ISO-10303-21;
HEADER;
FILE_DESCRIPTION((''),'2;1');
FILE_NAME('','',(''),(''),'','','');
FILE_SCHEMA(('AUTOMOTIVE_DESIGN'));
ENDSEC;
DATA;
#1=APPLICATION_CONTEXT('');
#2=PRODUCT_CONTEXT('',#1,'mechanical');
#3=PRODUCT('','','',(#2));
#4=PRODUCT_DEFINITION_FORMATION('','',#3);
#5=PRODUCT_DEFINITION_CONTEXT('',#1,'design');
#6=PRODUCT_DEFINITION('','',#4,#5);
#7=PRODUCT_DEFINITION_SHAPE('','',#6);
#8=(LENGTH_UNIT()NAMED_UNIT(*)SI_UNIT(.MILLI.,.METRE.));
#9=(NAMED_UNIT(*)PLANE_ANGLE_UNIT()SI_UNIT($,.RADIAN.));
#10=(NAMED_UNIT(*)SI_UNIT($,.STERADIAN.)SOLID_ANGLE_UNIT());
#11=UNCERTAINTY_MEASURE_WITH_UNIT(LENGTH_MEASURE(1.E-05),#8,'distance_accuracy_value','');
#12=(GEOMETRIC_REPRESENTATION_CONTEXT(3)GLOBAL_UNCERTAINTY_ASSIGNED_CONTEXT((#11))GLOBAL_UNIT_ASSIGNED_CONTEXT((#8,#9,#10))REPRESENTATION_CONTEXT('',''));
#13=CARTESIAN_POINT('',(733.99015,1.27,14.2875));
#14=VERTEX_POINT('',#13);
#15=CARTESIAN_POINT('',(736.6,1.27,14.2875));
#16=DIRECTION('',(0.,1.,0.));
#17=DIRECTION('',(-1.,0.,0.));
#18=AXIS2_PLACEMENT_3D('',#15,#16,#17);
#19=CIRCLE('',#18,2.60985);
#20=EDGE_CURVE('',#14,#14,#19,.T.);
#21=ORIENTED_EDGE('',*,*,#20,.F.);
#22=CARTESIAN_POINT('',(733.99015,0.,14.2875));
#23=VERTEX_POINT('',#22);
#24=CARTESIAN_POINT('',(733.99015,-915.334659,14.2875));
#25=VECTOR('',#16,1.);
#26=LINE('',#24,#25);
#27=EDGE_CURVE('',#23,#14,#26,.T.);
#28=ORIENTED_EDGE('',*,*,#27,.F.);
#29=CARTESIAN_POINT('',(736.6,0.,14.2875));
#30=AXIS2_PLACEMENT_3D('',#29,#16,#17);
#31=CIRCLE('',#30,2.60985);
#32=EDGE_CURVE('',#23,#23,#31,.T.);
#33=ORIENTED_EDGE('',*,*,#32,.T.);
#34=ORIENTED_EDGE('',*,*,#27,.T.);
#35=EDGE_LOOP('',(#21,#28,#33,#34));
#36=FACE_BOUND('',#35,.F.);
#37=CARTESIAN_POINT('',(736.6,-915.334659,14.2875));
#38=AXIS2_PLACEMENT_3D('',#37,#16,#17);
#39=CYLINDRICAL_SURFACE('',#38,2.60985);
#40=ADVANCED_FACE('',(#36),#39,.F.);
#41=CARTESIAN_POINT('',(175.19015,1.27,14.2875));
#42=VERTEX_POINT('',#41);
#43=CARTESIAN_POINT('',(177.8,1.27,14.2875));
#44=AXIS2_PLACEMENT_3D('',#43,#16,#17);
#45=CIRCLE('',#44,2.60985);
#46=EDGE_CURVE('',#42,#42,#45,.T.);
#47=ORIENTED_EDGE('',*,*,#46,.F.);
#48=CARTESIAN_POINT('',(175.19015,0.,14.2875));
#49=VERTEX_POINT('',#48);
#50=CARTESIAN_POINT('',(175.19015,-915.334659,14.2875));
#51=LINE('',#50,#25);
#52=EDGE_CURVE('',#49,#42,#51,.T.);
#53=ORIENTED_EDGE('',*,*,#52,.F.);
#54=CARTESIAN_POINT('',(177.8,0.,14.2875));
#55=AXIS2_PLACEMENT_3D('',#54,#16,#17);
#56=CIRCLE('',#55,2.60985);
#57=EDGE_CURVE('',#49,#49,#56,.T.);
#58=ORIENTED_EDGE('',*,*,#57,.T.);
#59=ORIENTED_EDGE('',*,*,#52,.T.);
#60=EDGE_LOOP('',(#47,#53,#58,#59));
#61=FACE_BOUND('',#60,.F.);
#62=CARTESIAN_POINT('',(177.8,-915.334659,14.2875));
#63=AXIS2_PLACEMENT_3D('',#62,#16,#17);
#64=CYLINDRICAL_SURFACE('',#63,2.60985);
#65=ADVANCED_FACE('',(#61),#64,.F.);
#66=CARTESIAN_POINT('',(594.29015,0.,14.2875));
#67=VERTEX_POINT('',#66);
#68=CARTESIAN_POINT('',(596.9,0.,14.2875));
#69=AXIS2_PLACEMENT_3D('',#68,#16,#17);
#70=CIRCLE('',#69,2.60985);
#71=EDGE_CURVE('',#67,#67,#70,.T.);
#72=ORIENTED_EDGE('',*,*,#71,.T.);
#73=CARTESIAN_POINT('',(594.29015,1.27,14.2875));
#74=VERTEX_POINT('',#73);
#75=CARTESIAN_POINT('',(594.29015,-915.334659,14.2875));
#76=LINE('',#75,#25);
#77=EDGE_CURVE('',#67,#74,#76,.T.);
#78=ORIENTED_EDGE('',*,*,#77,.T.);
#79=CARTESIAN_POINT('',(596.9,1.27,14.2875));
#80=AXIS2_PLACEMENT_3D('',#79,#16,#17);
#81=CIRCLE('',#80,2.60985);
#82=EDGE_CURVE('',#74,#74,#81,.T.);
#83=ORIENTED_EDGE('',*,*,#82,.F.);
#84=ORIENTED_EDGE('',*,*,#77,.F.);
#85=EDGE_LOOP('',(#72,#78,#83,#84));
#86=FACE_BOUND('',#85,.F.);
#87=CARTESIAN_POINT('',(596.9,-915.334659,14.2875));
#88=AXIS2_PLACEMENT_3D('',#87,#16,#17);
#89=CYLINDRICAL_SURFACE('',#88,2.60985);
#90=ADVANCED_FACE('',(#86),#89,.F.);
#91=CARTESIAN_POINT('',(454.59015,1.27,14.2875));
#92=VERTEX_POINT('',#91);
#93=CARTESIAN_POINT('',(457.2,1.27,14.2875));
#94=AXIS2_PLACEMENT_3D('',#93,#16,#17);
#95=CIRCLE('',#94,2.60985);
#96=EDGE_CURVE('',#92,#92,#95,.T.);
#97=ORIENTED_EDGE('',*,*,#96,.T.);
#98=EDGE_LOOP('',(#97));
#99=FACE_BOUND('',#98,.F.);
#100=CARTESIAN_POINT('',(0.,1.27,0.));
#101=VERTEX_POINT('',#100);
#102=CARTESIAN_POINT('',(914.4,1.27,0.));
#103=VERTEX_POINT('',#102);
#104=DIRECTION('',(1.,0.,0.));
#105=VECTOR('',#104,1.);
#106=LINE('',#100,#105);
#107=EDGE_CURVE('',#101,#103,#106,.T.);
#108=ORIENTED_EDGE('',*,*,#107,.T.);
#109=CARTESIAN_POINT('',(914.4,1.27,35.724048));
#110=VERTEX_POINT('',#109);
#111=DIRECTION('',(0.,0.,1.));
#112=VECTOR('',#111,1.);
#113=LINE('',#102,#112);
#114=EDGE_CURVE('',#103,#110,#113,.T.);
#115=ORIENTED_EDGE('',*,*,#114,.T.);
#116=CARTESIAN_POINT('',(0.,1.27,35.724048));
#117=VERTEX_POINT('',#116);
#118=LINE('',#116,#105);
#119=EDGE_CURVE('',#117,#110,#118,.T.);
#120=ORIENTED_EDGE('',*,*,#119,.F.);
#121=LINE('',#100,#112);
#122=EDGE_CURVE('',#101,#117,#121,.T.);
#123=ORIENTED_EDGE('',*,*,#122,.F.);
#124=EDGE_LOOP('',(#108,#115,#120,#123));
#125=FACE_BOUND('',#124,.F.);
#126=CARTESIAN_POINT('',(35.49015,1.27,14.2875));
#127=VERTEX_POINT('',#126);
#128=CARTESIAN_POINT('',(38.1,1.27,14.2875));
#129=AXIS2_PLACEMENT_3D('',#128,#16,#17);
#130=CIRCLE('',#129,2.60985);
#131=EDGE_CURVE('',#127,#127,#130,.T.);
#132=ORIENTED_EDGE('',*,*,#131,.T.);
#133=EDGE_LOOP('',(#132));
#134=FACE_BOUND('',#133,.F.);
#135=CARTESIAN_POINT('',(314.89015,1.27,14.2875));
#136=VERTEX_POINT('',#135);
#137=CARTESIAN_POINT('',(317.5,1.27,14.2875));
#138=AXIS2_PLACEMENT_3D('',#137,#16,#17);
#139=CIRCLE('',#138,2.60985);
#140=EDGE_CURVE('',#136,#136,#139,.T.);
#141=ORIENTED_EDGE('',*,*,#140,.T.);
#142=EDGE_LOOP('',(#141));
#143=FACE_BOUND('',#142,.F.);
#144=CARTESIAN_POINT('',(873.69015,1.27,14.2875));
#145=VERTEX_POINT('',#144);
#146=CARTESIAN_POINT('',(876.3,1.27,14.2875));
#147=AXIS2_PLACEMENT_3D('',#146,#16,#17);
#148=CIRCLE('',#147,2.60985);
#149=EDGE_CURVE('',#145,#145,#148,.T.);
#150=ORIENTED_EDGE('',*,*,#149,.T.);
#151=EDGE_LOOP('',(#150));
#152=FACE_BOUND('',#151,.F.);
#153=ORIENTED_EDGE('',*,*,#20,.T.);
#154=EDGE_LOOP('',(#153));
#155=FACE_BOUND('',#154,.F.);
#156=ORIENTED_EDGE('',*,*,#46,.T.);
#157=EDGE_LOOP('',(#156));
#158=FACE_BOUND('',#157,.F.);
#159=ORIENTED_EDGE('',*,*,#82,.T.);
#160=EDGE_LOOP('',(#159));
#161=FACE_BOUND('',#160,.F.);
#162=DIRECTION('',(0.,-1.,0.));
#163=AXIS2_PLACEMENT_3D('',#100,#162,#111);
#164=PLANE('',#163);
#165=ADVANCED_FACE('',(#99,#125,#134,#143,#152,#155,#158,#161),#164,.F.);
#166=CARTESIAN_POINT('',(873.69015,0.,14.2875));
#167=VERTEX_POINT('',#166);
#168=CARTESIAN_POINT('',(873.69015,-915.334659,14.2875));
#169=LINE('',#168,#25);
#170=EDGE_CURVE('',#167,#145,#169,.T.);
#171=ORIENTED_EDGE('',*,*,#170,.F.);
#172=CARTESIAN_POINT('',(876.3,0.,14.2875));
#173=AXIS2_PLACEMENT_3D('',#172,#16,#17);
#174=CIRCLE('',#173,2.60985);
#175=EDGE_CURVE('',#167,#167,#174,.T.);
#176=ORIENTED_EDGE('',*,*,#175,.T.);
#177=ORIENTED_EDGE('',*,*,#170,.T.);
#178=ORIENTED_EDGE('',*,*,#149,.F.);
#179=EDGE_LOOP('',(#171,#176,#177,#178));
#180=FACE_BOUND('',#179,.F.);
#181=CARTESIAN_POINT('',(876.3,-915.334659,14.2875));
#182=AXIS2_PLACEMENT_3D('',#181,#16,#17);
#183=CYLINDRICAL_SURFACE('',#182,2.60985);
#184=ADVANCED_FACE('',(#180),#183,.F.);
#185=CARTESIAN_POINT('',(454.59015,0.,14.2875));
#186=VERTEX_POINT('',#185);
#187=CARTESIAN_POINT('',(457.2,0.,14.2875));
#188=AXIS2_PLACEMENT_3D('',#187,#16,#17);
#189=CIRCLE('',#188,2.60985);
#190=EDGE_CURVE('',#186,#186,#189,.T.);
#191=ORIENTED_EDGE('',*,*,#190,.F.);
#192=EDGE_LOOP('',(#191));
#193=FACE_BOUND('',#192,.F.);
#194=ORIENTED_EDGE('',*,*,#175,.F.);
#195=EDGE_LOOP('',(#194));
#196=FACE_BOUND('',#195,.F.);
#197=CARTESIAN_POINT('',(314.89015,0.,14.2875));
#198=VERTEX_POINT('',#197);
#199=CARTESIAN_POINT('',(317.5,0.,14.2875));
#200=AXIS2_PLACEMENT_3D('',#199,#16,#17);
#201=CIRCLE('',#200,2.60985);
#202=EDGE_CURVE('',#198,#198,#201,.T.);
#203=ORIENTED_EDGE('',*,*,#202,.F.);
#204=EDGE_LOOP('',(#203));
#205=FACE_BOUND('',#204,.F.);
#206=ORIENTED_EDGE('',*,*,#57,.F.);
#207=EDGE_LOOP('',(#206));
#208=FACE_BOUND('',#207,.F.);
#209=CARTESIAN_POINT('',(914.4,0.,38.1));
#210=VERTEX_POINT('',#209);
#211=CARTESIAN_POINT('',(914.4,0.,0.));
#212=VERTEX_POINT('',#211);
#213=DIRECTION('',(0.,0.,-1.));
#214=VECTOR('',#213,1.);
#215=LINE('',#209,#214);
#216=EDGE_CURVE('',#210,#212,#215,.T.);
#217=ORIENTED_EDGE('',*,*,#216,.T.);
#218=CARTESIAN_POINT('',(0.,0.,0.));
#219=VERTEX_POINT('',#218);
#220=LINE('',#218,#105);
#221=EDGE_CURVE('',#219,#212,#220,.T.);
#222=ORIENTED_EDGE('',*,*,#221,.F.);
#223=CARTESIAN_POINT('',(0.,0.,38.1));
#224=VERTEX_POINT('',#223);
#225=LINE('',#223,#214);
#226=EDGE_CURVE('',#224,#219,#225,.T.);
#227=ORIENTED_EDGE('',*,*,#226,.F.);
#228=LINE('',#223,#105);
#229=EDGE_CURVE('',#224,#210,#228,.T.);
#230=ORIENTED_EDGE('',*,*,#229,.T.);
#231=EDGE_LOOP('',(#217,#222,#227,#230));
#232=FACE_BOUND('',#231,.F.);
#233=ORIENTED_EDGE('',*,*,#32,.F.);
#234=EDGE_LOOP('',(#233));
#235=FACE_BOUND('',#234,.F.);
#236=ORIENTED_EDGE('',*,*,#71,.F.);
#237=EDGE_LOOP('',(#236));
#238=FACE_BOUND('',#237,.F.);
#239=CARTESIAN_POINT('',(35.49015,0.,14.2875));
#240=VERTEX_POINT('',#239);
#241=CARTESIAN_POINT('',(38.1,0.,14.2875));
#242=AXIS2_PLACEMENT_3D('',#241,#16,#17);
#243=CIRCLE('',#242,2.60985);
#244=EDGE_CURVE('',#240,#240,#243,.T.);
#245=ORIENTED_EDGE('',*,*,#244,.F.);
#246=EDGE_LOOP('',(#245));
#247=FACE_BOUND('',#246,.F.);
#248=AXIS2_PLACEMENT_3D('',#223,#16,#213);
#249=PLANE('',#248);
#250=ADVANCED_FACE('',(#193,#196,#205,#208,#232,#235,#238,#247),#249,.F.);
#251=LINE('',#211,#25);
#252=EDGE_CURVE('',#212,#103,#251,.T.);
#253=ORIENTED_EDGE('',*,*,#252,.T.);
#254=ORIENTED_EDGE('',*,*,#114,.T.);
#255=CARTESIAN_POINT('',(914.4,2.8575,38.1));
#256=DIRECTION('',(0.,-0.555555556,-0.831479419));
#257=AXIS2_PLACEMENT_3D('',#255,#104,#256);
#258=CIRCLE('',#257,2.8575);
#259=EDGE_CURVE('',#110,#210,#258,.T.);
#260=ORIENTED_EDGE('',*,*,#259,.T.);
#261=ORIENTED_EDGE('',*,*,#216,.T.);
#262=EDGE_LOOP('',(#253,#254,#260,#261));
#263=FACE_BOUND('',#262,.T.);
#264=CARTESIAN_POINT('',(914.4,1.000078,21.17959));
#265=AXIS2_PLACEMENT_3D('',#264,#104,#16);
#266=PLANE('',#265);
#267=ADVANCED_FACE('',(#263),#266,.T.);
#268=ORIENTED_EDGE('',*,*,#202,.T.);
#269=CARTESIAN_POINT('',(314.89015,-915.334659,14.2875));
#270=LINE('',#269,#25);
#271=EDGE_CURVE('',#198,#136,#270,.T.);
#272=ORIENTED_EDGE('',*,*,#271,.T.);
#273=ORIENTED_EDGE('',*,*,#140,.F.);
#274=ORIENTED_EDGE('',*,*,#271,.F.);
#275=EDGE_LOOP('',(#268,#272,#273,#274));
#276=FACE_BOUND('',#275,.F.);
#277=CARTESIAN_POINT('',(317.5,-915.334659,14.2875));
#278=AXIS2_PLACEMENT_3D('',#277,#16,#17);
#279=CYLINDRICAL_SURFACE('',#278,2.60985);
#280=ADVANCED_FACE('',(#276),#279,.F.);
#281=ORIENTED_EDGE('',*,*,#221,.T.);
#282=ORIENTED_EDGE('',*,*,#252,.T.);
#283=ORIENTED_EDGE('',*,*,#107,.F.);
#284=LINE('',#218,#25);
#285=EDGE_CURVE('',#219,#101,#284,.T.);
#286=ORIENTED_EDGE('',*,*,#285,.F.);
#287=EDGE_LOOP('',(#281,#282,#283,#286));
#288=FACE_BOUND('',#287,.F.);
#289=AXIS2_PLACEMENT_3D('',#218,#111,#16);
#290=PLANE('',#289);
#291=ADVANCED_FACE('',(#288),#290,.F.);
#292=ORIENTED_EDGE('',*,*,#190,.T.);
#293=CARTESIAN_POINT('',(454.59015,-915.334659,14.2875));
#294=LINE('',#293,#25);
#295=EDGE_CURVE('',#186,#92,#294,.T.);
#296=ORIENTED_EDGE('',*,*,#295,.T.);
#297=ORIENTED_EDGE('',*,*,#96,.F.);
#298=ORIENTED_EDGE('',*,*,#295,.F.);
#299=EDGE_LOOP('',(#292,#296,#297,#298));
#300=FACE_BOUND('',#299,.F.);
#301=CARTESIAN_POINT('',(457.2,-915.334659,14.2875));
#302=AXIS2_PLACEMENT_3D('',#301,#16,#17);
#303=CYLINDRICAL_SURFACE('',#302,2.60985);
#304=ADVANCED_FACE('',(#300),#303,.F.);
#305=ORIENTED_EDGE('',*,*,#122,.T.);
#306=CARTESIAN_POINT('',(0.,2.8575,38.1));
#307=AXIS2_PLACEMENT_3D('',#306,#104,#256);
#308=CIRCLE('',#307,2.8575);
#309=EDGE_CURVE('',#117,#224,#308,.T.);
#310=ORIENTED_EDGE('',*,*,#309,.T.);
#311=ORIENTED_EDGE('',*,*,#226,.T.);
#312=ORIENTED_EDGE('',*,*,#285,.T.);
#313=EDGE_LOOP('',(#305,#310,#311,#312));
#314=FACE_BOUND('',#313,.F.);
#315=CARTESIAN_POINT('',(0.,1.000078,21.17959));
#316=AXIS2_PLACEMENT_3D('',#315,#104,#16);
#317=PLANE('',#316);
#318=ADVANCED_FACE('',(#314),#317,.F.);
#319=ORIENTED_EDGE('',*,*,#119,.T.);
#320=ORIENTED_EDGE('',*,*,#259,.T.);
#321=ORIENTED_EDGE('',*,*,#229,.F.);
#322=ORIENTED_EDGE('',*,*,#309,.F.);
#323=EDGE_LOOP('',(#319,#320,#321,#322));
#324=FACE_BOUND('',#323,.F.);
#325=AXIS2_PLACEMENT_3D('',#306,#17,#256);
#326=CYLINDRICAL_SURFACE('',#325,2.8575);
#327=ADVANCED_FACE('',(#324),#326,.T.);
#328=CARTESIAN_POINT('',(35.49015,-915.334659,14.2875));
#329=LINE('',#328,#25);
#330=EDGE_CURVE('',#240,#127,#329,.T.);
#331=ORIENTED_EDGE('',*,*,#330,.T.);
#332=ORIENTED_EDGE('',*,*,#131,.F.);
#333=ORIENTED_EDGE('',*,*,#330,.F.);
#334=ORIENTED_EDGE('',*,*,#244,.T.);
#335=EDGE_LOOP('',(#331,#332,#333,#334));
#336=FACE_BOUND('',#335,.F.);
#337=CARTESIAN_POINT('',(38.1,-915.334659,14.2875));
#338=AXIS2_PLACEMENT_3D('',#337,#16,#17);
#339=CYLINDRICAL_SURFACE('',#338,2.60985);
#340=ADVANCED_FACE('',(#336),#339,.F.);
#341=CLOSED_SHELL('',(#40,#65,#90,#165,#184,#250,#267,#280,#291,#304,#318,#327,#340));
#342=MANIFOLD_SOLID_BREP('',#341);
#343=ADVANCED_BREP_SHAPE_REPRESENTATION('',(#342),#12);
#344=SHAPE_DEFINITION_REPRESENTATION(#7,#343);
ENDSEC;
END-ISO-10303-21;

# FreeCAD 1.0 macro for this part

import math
import FreeCAD as App
import Part
import Sketcher

V = App.Vector
Q = App.Units.Quantity

doc = App.newDocument("Part")
params = doc.addObject("Spreadsheet::Sheet", "Params")
for row, (alias, value) in enumerate([
    ("sketch1_height", "1.5 in"),
    ("sketch1_width", "0.05 in"),
    ("pad1_length", "36 in"),
    ("hole_diameter", "0.2055 in"),
], start=1):
    params.set(f"A{row}", alias)
    params.set(f"B{row}", "=" + value)
    params.setAlias(f"B{row}", alias)

body = doc.addObject("PartDesign::Body", "Body")

# Sketch on YZ plane
sketch1 = doc.addObject("Sketcher::SketchObject", "Sketch")
body.addObject(sketch1)
sketch1.AttachmentSupport = (doc.YZ_Plane, [""])
sketch1.MapMode = "FlatFace"
sketch1.addGeometry(Part.LineSegment(V(0, 38.1, 0), V(0, 0, 0)), False)
sketch1.addGeometry(Part.LineSegment(V(0, 0, 0), V(1.3, 0, 0)), False)
sketch1.addGeometry(Part.LineSegment(V(1.3, 0, 0), V(1.3, 35.7, 0)), False)
sketch1.addGeometry(Part.ArcOfCircle(Part.Circle(V(2.9, 38.1, 0), V(0, 0, 1), 2.9), math.radians(-124), math.radians(180)), False)
sketch1.addConstraint(Sketcher.Constraint("Coincident", 0, 2, 1, 1))
sketch1.addConstraint(Sketcher.Constraint("Coincident", 1, 2, 2, 1))
sketch1.addConstraint(Sketcher.Constraint("Coincident", 2, 2, 3, 1))
sketch1.addConstraint(Sketcher.Constraint("Tangent", 3, 2, 0, 1))
sketch1.addConstraint(Sketcher.Constraint("Vertical", 0))
sketch1.addConstraint(Sketcher.Constraint("Horizontal", 1))
sketch1.addConstraint(Sketcher.Constraint("Vertical", 2))
sketch1.addConstraint(Sketcher.Constraint("Coincident", 0, 2, -1, 1))
sketch1.addConstraint(Sketcher.Constraint("DistanceY", 0, 2, 0, 1, Q("1.5 in")))
sketch1.addConstraint(Sketcher.Constraint("DistanceX", 1, 1, 1, 2, Q("0.05 in")))
sketch1.addConstraint(Sketcher.Constraint("Radius", 3, Q("0.1125 in")))
sketch1.setExpression("Constraints[8]", "Params.sketch1_height")
sketch1.setExpression("Constraints[9]", "Params.sketch1_width")
pad1 = doc.addObject("PartDesign::Pad", "Pad")
body.addObject(pad1)
pad1.Profile = sketch1
pad1.setExpression("Length", "Params.pad1_length")

# Sketch on XZ plane
sketch2 = doc.addObject("Sketcher::SketchObject", "Sketch001")
body.addObject(sketch2)
sketch2.AttachmentSupport = (doc.XZ_Plane, [""])
sketch2.MapMode = "FlatFace"
sketch2.addGeometry(Part.Circle(V(38.1, 14.3, 0), V(0, 0, 1), 2.6), False)
sketch2.addGeometry(Part.Circle(V(177.8, 14.3, 0), V(0, 0, 1), 2.6), False)
sketch2.addGeometry(Part.Circle(V(317.5, 14.3, 0), V(0, 0, 1), 2.6), False)
sketch2.addGeometry(Part.Circle(V(596.9, 14.3, 0), V(0, 0, 1), 2.6), False)
sketch2.addGeometry(Part.Circle(V(736.6, 14.3, 0), V(0, 0, 1), 2.6), False)
sketch2.addGeometry(Part.Circle(V(876.3, 14.3, 0), V(0, 0, 1), 2.6), False)
sketch2.addGeometry(Part.Circle(V(457.2, 14.3, 0), V(0, 0, 1), 2.6), False)
sketch2.addConstraint(Sketcher.Constraint("Equal", 0, 1))
sketch2.addConstraint(Sketcher.Constraint("Equal", 1, 2))
sketch2.addConstraint(Sketcher.Constraint("Equal", 2, 3))
sketch2.addConstraint(Sketcher.Constraint("Equal", 3, 4))
sketch2.addConstraint(Sketcher.Constraint("Equal", 4, 5))
sketch2.addConstraint(Sketcher.Constraint("Equal", 5, 6))
sketch2.addConstraint(Sketcher.Constraint("Horizontal", 0, 3, 1, 3))
sketch2.addConstraint(Sketcher.Constraint("Horizontal", 1, 3, 2, 3))
sketch2.addConstraint(Sketcher.Constraint("Horizontal", 2, 3, 3, 3))
sketch2.addConstraint(Sketcher.Constraint("Horizontal", 3, 3, 4, 3))
sketch2.addConstraint(Sketcher.Constraint("Horizontal", 4, 3, 5, 3))
sketch2.addConstraint(Sketcher.Constraint("Horizontal", 5, 3, 6, 3))
sketch2.addConstraint(Sketcher.Constraint("DistanceX", -1, 1, 1, 3, Q("7 in")))
sketch2.addConstraint(Sketcher.Constraint("DistanceX", -1, 1, 4, 3, Q("29 in")))
sketch2.addConstraint(Sketcher.Constraint("DistanceX", -1, 1, 6, 3, Q("18 in")))
sketch2.addConstraint(Sketcher.Constraint("DistanceX", 0, 3, 2, 3, Q("11 in")))
sketch2.addConstraint(Sketcher.Constraint("DistanceX", 2, 3, 3, 3, Q("11 in")))
sketch2.addConstraint(Sketcher.Constraint("DistanceX", 3, 3, 5, 3, Q("11 in")))
sketch2.addConstraint(Sketcher.Constraint("Diameter", 0, Q("0.2055 in")))
sketch2.addConstraint(Sketcher.Constraint("DistanceX", -1, 1, 0, 3, Q("1.5 in")))
sketch2.addConstraint(Sketcher.Constraint("DistanceY", -1, 1, 0, 3, Q("0.5625 in")))
doc.recompute()
hole = doc.addObject("PartDesign::Hole", "Hole")
body.addObject(hole)
hole.Profile = sketch2
hole.ThreadType = "None"
hole.setExpression("Diameter", "Params.hole_diameter")
hole.DepthType = "ThroughAll"

doc.recompute()
